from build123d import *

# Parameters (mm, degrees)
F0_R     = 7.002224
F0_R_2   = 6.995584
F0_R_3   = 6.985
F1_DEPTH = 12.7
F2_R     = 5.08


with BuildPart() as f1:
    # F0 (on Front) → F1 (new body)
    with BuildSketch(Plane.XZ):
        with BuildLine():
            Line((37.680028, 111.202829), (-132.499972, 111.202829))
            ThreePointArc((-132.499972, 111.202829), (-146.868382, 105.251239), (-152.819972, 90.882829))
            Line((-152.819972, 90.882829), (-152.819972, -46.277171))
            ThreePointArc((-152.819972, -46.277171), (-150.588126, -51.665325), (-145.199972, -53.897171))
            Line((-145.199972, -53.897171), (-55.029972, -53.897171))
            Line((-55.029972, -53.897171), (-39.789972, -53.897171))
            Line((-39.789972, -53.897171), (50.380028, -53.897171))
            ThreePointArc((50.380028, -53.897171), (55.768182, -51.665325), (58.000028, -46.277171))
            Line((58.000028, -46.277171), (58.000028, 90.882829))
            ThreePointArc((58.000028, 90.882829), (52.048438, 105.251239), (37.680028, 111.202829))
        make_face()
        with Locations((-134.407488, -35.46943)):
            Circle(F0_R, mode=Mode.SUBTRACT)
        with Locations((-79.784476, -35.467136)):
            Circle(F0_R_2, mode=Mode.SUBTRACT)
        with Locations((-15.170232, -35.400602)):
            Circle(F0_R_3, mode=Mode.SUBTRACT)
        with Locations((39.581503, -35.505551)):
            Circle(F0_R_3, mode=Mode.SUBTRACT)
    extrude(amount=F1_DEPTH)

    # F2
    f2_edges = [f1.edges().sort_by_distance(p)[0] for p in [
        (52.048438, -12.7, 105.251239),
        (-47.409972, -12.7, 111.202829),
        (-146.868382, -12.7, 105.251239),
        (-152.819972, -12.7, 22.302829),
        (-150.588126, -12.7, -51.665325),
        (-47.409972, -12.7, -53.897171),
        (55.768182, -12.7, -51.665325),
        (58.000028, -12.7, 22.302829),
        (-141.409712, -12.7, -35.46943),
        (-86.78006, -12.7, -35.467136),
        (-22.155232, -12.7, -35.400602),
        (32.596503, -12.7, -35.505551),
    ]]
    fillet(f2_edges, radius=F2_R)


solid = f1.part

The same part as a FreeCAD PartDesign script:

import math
import FreeCAD as App
import Part
import Sketcher

V = App.Vector
Q = App.Units.Quantity


def edges_at(feature, points):
    """Names of the edges that pass closest to the given points."""
    edges = feature.Shape.Edges
    near = lambda p: min(range(len(edges)), key=lambda i: edges[i].distToShape(Part.Vertex(*p))[0])
    return sorted({f"Edge{near(p) + 1}" for p in points})

doc = App.newDocument("Part")
body = doc.addObject("PartDesign::Body", "Body")

sketch1 = doc.addObject("Sketcher::SketchObject", "Sketch")
body.addObject(sketch1)
sketch1.AttachmentSupport = (doc.XZ_Plane, [""])
sketch1.MapMode = "FlatFace"
sketch1.addGeometry(Part.LineSegment(V(38, 111, 0), V(-132, 111, 0)), False)
sketch1.addGeometry(Part.ArcOfCircle(Part.Circle(V(-132, 91, 0), V(0, 0, 1), 20), math.radians(90), math.radians(180)), False)
sketch1.addGeometry(Part.LineSegment(V(-153, 91, 0), V(-153, -46, 0)), False)
sketch1.addGeometry(Part.ArcOfCircle(Part.Circle(V(-145, -46, 0), V(0, 0, 1), 8), math.radians(180), math.radians(270)), False)
sketch1.addGeometry(Part.LineSegment(V(-145, -54, 0), V(50, -54, 0)), False)
sketch1.addGeometry(Part.ArcOfCircle(Part.Circle(V(50, -46, 0), V(0, 0, 1), 8), math.radians(-90), math.radians(0)), False)
sketch1.addGeometry(Part.LineSegment(V(58, -46, 0), V(58, 91, 0)), False)
sketch1.addGeometry(Part.ArcOfCircle(Part.Circle(V(38, 91, 0), V(0, 0, 1), 20), math.radians(0), math.radians(90)), False)
sketch1.addGeometry(Part.Circle(V(-134, -35, 0), V(0, 0, 1), 7), False)
sketch1.addGeometry(Part.Circle(V(-80, -35, 0), V(0, 0, 1), 7), False)
sketch1.addGeometry(Part.Circle(V(40, -36, 0), V(0, 0, 1), 7), False)
sketch1.addGeometry(Part.Circle(V(-15, -35, 0), V(0, 0, 1), 7), False)
sketch1.addConstraint(Sketcher.Constraint("Tangent", 0, 2, 1, 1))
sketch1.addConstraint(Sketcher.Constraint("Tangent", 1, 2, 2, 1))
sketch1.addConstraint(Sketcher.Constraint("Tangent", 2, 2, 3, 1))
sketch1.addConstraint(Sketcher.Constraint("Tangent", 3, 2, 4, 1))
sketch1.addConstraint(Sketcher.Constraint("Tangent", 4, 2, 5, 1))
sketch1.addConstraint(Sketcher.Constraint("Tangent", 5, 2, 6, 1))
sketch1.addConstraint(Sketcher.Constraint("Tangent", 6, 2, 7, 1))
sketch1.addConstraint(Sketcher.Constraint("Tangent", 7, 2, 0, 1))
sketch1.addConstraint(Sketcher.Constraint("Horizontal", 0))
sketch1.addConstraint(Sketcher.Constraint("Vertical", 2))
sketch1.addConstraint(Sketcher.Constraint("Horizontal", 4))
sketch1.addConstraint(Sketcher.Constraint("Vertical", 6))
sketch1.addConstraint(Sketcher.Constraint("Equal", 3, 5))
sketch1.addConstraint(Sketcher.Constraint("Equal", 1, 7))
sketch1.addConstraint(Sketcher.Constraint("Equal", 10, 11))
sketch1.addConstraint(Sketcher.Constraint("Radius", 1, Q("0.8 in")))
sketch1.addConstraint(Sketcher.Constraint("Radius", 3, Q("0.3 in")))
sketch1.addConstraint(Sketcher.Constraint("Diameter", 10, Q("0.55 in")))
sketch1.addConstraint(Sketcher.Constraint("DistanceX", 0, 2, 0, 1, Q("6.7 in")))
sketch1.addConstraint(Sketcher.Constraint("DistanceY", 2, 2, 2, 1, Q("5.4 in")))
sketch1.addConstraint(Sketcher.Constraint("Diameter", 8, Q("14.004448 mm")))
sketch1.addConstraint(Sketcher.Constraint("Diameter", 9, Q("13.991168 mm")))
sketch1.addConstraint(Sketcher.Constraint("DistanceY", -1, 1, 1, 3, Q("90.88283 mm")))
sketch1.addConstraint(Sketcher.Constraint("DistanceX", -1, 1, 5, 3, Q("50.380029 mm")))
sketch1.addConstraint(Sketcher.Constraint("DistanceX", 8, 3, -1, 1, Q("134.407488 mm")))
sketch1.addConstraint(Sketcher.Constraint("DistanceY", 8, 3, -1, 1, Q("35.46943 mm")))
sketch1.addConstraint(Sketcher.Constraint("DistanceY", 10, 3, -1, 1, Q("35.505551 mm")))
sketch1.addConstraint(Sketcher.Constraint("DistanceX", 9, 3, 10, 3, Q("119.365979 mm")))
sketch1.addConstraint(Sketcher.Constraint("DistanceX", 8, 3, 10, 3, Q("173.988991 mm")))
sketch1.addConstraint(Sketcher.Constraint("DistanceY", 10, 3, 11, 3, Q("0.104949 mm")))
sketch1.addConstraint(Sketcher.Constraint("DistanceX", 11, 3, 5, 3, Q("65.550261 mm")))
sketch1.addConstraint(Sketcher.Constraint("DistanceY", 9, 3, -1, 1, Q("35.467136 mm")))
pad1 = doc.addObject("PartDesign::Pad", "Pad")
body.addObject(pad1)
pad1.Profile = sketch1
pad1.Length = Q("0.5 in")
doc.recompute()

fillet = doc.addObject("PartDesign::Fillet", "Fillet")
body.addObject(fillet)
fillet.Base = (pad1, edges_at(pad1, [
    (52.048, -12.7, 105.251),
    (-47.41, -12.7, 111.203),
    (-146.868, -12.7, 105.251),
    (-152.82, -12.7, 22.303),
    (-150.588, -12.7, -51.665),
    (-47.41, -12.7, -53.897),
    (55.768, -12.7, -51.665),
    (58, -12.7, 22.303),
    (-141.41, -12.7, -35.469),
    (-86.78, -12.7, -35.467),
    (-22.155, -12.7, -35.401),
    (32.597, -12.7, -35.506),
]))
fillet.Radius = Q("0.2 in")

doc.recompute()
